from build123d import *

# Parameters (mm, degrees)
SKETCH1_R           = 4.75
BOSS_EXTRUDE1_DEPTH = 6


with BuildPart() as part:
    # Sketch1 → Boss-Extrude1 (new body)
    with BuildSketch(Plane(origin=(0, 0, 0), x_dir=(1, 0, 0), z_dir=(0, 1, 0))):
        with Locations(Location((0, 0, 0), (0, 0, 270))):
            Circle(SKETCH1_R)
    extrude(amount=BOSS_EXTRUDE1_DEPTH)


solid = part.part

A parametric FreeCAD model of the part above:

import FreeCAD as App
import Part
import Sketcher

V = App.Vector

doc = App.newDocument("Part")
body = doc.addObject("PartDesign::Body", "Body")

# Sketch on XZ plane
sketch1 = body.newObject("Sketcher::SketchObject", "Sketch")
sketch1.AttachmentSupport = (doc.getObject("XZ_Plane"), [""])
sketch1.MapMode = "FlatFace"
sketch1.addGeometry(Part.Circle(V(0, 0, 0), V(0, 0, 1), 4.8), False)
sketch1.addConstraint(Sketcher.Constraint("Coincident", 0, 3, -1, 1))
sketch1.addConstraint(Sketcher.Constraint("Diameter", 0, 9.5))
pad1 = body.newObject("PartDesign::Pad", "Pad")
pad1.Profile = sketch1
pad1.Length = 6
pad1.Reversed = True

doc.recompute()
